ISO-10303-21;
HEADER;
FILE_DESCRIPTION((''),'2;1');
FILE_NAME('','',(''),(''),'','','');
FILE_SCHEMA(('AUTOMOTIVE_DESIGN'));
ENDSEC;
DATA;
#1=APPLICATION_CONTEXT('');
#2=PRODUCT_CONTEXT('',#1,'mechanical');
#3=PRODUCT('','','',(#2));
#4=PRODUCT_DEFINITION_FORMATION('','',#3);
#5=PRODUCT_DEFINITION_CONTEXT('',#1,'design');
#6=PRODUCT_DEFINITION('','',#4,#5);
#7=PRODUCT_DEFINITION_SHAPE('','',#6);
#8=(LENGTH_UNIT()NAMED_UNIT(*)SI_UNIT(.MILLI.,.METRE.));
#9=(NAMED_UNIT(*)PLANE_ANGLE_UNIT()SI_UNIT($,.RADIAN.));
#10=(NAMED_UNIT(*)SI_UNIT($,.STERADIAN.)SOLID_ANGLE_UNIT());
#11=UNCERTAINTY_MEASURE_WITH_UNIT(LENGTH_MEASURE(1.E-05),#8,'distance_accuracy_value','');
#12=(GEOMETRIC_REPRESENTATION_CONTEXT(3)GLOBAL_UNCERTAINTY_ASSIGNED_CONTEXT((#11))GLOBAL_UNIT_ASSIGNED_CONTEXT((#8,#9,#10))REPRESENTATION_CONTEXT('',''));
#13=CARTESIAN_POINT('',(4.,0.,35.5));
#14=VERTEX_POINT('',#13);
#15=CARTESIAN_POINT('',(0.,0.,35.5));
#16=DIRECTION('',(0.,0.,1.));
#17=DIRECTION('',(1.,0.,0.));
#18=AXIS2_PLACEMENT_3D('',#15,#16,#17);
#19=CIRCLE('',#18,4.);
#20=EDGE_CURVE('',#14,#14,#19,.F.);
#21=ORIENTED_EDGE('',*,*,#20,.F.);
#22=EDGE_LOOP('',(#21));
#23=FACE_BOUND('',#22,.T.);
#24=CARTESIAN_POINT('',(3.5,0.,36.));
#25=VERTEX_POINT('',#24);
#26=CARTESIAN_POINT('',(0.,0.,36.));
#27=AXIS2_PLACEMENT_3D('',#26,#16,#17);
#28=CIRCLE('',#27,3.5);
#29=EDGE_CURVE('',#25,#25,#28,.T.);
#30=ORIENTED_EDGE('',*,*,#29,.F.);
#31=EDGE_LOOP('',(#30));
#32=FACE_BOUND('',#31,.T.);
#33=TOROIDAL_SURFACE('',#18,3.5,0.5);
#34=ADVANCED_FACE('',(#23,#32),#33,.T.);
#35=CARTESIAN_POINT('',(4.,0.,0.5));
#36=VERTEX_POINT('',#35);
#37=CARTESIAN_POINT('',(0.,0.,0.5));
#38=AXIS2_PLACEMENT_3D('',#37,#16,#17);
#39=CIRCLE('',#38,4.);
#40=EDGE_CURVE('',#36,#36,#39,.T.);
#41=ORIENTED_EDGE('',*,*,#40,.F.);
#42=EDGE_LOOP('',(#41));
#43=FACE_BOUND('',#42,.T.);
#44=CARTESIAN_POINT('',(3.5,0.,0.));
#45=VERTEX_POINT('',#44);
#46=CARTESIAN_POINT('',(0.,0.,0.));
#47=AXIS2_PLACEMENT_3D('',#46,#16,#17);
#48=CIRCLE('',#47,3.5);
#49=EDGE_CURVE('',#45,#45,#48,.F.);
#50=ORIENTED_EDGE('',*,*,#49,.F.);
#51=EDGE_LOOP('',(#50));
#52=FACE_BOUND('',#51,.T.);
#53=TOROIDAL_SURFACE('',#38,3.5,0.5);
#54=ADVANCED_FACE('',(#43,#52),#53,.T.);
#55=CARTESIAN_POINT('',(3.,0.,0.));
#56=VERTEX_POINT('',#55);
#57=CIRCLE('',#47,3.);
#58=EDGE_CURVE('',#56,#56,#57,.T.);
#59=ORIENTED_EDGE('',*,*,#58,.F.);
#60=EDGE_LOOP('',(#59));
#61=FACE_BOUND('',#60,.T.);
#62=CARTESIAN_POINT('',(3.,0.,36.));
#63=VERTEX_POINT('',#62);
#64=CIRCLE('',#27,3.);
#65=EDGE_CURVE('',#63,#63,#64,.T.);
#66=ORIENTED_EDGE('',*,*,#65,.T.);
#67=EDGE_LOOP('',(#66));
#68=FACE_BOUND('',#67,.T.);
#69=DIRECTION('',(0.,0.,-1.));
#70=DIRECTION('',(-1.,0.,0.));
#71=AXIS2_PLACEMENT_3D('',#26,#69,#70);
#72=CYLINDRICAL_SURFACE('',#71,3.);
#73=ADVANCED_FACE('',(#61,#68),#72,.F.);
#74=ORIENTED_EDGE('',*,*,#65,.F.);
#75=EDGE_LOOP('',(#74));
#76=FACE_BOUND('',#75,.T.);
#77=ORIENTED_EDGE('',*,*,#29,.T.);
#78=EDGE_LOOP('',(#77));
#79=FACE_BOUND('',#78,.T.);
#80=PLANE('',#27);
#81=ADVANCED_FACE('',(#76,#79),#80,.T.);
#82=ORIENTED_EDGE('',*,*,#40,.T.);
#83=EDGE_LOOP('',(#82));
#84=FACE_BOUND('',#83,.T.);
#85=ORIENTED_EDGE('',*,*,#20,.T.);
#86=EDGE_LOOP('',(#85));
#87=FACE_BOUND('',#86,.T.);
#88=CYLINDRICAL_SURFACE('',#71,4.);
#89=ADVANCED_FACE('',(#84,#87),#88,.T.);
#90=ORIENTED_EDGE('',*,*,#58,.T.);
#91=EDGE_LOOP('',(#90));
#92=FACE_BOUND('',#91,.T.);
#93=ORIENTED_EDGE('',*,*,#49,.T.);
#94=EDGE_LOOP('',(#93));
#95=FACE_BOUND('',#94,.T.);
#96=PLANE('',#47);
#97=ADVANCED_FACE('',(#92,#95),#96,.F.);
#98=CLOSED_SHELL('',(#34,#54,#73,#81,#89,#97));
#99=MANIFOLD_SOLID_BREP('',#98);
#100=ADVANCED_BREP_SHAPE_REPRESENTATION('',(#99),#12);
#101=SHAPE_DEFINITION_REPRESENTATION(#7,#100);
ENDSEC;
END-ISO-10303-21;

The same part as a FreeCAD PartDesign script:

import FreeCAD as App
import Part
import Sketcher
from FreeCAD import Vector


def edges_at(feature, points):
    """Names of the edges that pass closest to the given points."""
    edges = feature.Shape.Edges
    near = lambda p: min(range(len(edges)), key=lambda i: edges[i].distToShape(Part.Vertex(*p))[0])
    return sorted({f"Edge{near(p) + 1}" for p in points})

doc = App.newDocument("Part")
body = doc.addObject("PartDesign::Body", "Body")

# Sketch on XY plane
sketch1 = body.newObject("Sketcher::SketchObject", "Sketch")
sketch1.AttachmentSupport = (doc.getObject("XY_Plane"), [""])
sketch1.MapMode = "FlatFace"
sketch1.addGeometry(Part.Circle(Vector(0, 0, 0), Vector(0, 0, 1), 4), False)
sketch1.addGeometry(Part.Circle(Vector(0, 0, 0), Vector(0, 0, 1), 3), False)
sketch1.addConstraint(Sketcher.Constraint("Coincident", 0, 3, -1, 1))
sketch1.addConstraint(Sketcher.Constraint("Coincident", 1, 3, -1, 1))
sketch1.addConstraint(Sketcher.Constraint("Diameter", 0, 8.0))
sketch1.addConstraint(Sketcher.Constraint("Diameter", 1, 6.0))
pad1 = body.newObject("PartDesign::Pad", "Pad")
pad1.Profile = sketch1
pad1.Length = 36
doc.recompute()

fillet = body.newObject("PartDesign::Fillet", "Fillet")
fillet.Base = (pad1, edges_at(pad1, [(-4, 0, 0), (-4, 0, 36)]))
fillet.Radius = 0.5

doc.recompute()
